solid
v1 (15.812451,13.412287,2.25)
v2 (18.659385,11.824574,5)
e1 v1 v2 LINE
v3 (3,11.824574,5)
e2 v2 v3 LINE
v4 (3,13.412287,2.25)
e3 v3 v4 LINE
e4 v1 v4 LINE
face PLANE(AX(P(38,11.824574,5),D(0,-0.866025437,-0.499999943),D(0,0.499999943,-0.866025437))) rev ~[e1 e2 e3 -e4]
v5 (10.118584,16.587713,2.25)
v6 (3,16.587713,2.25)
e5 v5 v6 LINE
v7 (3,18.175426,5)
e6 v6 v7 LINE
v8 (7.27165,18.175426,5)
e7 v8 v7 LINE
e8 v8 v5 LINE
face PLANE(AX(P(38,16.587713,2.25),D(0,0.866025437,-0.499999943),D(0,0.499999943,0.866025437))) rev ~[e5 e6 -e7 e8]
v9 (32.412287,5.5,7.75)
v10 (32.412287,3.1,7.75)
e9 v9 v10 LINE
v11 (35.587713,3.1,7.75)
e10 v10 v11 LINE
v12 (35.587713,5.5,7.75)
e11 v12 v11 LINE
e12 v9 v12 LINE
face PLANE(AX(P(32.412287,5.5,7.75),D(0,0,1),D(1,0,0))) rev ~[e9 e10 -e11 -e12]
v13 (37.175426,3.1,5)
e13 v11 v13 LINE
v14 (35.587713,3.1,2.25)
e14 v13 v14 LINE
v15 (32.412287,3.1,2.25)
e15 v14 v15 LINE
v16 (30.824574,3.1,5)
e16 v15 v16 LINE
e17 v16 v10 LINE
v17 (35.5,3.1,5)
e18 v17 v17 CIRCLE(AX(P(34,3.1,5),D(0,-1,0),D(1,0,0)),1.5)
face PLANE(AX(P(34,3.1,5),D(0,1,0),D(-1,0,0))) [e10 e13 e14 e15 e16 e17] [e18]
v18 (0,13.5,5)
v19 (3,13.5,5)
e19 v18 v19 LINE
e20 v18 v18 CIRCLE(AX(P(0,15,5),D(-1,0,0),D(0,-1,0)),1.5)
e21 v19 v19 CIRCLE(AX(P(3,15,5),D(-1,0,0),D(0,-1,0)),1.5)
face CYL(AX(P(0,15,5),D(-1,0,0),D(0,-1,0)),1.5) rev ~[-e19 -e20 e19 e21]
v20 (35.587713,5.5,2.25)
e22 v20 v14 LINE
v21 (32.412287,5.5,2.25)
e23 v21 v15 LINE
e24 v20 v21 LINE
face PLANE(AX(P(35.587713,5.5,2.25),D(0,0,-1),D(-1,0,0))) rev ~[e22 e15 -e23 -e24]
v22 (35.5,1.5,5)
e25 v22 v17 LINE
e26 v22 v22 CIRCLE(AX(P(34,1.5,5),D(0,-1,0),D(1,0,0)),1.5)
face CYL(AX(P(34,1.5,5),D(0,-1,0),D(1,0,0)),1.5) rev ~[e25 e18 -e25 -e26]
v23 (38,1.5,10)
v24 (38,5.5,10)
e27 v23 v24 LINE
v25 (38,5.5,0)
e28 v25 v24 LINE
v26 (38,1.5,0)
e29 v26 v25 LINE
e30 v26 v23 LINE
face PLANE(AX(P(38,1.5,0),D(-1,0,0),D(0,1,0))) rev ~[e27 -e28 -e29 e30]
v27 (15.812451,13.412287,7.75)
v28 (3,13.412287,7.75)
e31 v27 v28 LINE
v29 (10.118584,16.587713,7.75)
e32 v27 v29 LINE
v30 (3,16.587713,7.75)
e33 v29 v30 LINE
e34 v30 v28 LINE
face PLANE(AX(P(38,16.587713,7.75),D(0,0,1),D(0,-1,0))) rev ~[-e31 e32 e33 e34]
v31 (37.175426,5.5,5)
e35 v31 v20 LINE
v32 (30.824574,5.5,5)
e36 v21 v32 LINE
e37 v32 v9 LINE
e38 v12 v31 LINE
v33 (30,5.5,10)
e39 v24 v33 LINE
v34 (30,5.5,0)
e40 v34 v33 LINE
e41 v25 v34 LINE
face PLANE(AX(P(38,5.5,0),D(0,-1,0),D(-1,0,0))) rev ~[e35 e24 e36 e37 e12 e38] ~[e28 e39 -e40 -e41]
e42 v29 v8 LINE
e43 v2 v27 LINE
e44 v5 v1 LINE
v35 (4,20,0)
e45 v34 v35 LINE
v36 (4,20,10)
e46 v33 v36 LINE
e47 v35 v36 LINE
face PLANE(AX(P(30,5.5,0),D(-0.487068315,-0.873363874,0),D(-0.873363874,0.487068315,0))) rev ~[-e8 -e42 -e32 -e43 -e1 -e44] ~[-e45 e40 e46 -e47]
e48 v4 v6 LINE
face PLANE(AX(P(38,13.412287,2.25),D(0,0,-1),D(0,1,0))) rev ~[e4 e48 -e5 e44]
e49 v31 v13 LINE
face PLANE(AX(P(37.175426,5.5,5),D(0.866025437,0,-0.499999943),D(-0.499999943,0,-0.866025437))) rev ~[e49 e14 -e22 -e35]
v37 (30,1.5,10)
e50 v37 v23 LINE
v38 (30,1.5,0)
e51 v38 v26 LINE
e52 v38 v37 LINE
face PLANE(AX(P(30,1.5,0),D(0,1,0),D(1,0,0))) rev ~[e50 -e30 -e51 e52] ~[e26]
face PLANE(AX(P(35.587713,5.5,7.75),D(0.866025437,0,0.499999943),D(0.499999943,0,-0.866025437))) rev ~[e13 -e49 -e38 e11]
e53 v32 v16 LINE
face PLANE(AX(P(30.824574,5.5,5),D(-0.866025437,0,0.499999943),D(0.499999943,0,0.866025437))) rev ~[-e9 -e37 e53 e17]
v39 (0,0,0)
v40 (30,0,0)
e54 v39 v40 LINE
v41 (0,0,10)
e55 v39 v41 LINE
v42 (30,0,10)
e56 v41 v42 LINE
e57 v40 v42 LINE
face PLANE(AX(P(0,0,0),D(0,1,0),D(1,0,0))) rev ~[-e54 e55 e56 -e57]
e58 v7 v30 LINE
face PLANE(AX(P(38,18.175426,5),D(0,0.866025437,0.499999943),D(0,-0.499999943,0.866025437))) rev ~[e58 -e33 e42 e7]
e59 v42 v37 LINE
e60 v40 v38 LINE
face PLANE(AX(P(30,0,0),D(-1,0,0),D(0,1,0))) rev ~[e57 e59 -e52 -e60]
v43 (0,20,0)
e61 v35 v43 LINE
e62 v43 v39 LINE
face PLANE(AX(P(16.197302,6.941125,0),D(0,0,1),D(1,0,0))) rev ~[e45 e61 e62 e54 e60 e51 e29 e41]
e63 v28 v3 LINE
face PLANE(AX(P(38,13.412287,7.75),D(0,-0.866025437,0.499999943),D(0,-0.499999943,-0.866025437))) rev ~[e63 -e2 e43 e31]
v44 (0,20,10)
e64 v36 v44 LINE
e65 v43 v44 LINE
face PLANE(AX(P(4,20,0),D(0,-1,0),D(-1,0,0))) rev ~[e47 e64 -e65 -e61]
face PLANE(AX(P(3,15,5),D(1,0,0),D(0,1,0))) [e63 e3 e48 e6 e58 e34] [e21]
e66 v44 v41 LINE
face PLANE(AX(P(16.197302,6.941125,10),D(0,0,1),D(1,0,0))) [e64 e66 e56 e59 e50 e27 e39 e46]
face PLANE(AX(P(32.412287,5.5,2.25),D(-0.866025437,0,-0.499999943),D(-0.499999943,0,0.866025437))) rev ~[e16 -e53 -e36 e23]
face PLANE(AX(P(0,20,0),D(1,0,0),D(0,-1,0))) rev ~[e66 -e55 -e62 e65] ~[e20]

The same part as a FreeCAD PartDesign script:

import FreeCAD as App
import Part
import Sketcher
from FreeCAD import Vector
Q = App.Units.Quantity

doc = App.newDocument("Part")
body = doc.addObject("PartDesign::Body", "Body")

sketch1 = body.newObject("Sketcher::SketchObject", "Sketch")
sketch1.AttachmentSupport = (doc.getObject("XY_Plane"), [""])
sketch1.MapMode = "FlatFace"
sketch1.addGeometry([
    Part.LineSegment(Vector(0, 0, 0), Vector(30, 0, 0)),
    Part.LineSegment(Vector(30, 0, 0), Vector(30, 1.5, 0)),
    Part.LineSegment(Vector(30, 1.5, 0), Vector(38, 1.5, 0)),
    Part.LineSegment(Vector(38, 1.5, 0), Vector(38, 5.5, 0)),
    Part.LineSegment(Vector(38, 5.5, 0), Vector(30, 5.5, 0)),
    Part.LineSegment(Vector(30, 5.5, 0), Vector(4, 20, 0)),
    Part.LineSegment(Vector(4, 20, 0), Vector(0, 20, 0)),
    Part.LineSegment(Vector(0, 20, 0), Vector(0, 0, 0)),
], False)
sketch1.addConstraint([
    Sketcher.Constraint("Coincident", 0, 2, 1, 1),
    Sketcher.Constraint("Coincident", 1, 2, 2, 1),
    Sketcher.Constraint("Coincident", 2, 2, 3, 1),
    Sketcher.Constraint("Coincident", 3, 2, 4, 1),
    Sketcher.Constraint("Coincident", 4, 2, 5, 1),
    Sketcher.Constraint("Coincident", 5, 2, 6, 1),
    Sketcher.Constraint("Coincident", 6, 2, 7, 1),
    Sketcher.Constraint("Coincident", 7, 2, 0, 1),
    Sketcher.Constraint("Horizontal", 0),
    Sketcher.Constraint("Vertical", 1),
    Sketcher.Constraint("Horizontal", 2),
    Sketcher.Constraint("Vertical", 3),
    Sketcher.Constraint("Horizontal", 4),
    Sketcher.Constraint("Horizontal", 6),
    Sketcher.Constraint("Vertical", 7),
    Sketcher.Constraint("Coincident", 7, 2, -1, 1),
    Sketcher.Constraint("Vertical", 1, 2, 4, 2),
    Sketcher.Constraint("Equal", 6, 3),
    Sketcher.Constraint("DistanceX", 0, 1, 0, 2, Q("30 mm")),
    Sketcher.Constraint("DistanceX", 2, 1, 2, 2, Q("8 mm")),
    Sketcher.Constraint("DistanceX", 6, 2, 6, 1, Q("4 mm")),
    Sketcher.Constraint("DistanceY", 7, 2, 7, 1, Q("20 mm")),
    Sketcher.Constraint("DistanceY", 1, 1, 1, 2, Q("1.5 mm")),
])
pad1 = body.newObject("PartDesign::Pad", "Pad")
pad1.Profile = sketch1
pad1.Length = 10

sketch2 = body.newObject("Sketcher::SketchObject", "Sketch001")
sketch2.AttachmentSupport = (doc.getObject("XZ_Plane"), [""])
sketch2.MapMode = "FlatFace"
sketch2.AttachmentOffset = App.Placement(Vector(0, 0, -1.5), App.Rotation())
sketch2.addGeometry(Part.Circle(Vector(34, 5, 0), Vector(0, 0, 1), 1.5), False)
sketch2.addConstraint([
    Sketcher.Constraint("Diameter", 0, Q("3 mm")),
    Sketcher.Constraint("DistanceX", -1, 1, 0, 3, Q("34 mm")),
    Sketcher.Constraint("DistanceY", -1, 1, 0, 3, Q("5 mm")),
])
pocket1 = body.newObject("PartDesign::Pocket", "Pocket")
pocket1.Profile = sketch2
pocket1.Type = "ThroughAll"

sketch3 = body.newObject("Sketcher::SketchObject", "Sketch002")
sketch3.AttachmentSupport = (doc.getObject("XZ_Plane"), [""])
sketch3.MapMode = "FlatFace"
sketch3.AttachmentOffset = App.Placement(Vector(0, 0, -5.5), App.Rotation())
sketch3.addGeometry([
    Part.LineSegment(Vector(30.8, 5, 0), Vector(32.4, 7.8, 0)),
    Part.LineSegment(Vector(32.4, 7.8, 0), Vector(35.6, 7.8, 0)),
    Part.LineSegment(Vector(35.6, 7.8, 0), Vector(37.2, 5, 0)),
    Part.LineSegment(Vector(37.2, 5, 0), Vector(35.6, 2.2, 0)),
    Part.LineSegment(Vector(35.6, 2.2, 0), Vector(32.4, 2.2, 0)),
    Part.LineSegment(Vector(32.4, 2.2, 0), Vector(30.8, 5, 0)),
], False)
sketch3.addConstraint([
    Sketcher.Constraint("Coincident", 0, 2, 1, 1),
    Sketcher.Constraint("Coincident", 1, 2, 2, 1),
    Sketcher.Constraint("Coincident", 2, 2, 3, 1),
    Sketcher.Constraint("Coincident", 3, 2, 4, 1),
    Sketcher.Constraint("Coincident", 4, 2, 5, 1),
    Sketcher.Constraint("Coincident", 5, 2, 0, 1),
    Sketcher.Constraint("Horizontal", 1),
    Sketcher.Constraint("Horizontal", 4),
    Sketcher.Constraint("Parallel", 0, 3),
    Sketcher.Constraint("Parallel", 2, 5),
    Sketcher.Constraint("Horizontal", 2, 2, 5, 2),
    Sketcher.Constraint("Vertical", 1, 2, 3, 2),
    Sketcher.Constraint("Vertical", 0, 2, 4, 2),
    Sketcher.Constraint("Angle", 0, Q("60.000004 deg")),
    Sketcher.Constraint("DistanceY", -1, 1, 2, 2, Q("5 mm")),
    Sketcher.Constraint("DistanceY", 3, 2, 1, 2, Q("5.5 mm")),
    Sketcher.Constraint("DistanceX", 1, 1, 1, 2, Q("3.175426 mm")),
    Sketcher.Constraint("DistanceX", -1, 1, 0, 2, Q("32.412287 mm")),
])
pocket2 = body.newObject("PartDesign::Pocket", "Pocket001")
pocket2.Profile = sketch3
pocket2.Length = 2.4
pocket2.Reversed = True

sketch4 = body.newObject("Sketcher::SketchObject", "Sketch003")
sketch4.AttachmentSupport = (doc.getObject("YZ_Plane"), [""])
sketch4.MapMode = "FlatFace"
sketch4.addGeometry(Part.Circle(Vector(15, 5, 0), Vector(0, 0, 1), 1.5), False)
sketch4.addConstraint([
    Sketcher.Constraint("Diameter", 0, Q("3 mm")),
    Sketcher.Constraint("DistanceX", -1, 1, 0, 3, Q("15 mm")),
    Sketcher.Constraint("DistanceY", -1, 1, 0, 3, Q("5 mm")),
])
pocket3 = body.newObject("PartDesign::Pocket", "Pocket002")
pocket3.Profile = sketch4
pocket3.Type = "ThroughAll"
pocket3.Reversed = True

sketch5 = body.newObject("Sketcher::SketchObject", "Sketch004")
sketch5.AttachmentSupport = (doc.getObject("YZ_Plane"), [""])
sketch5.MapMode = "FlatFace"
sketch5.AttachmentOffset = App.Placement(Vector(0, 0, 38), App.Rotation())
sketch5.addGeometry([
    Part.LineSegment(Vector(16.6, 2.2, 0), Vector(18.2, 5, 0)),
    Part.LineSegment(Vector(18.2, 5, 0), Vector(16.6, 7.8, 0)),
    Part.LineSegment(Vector(16.6, 7.8, 0), Vector(13.4, 7.8, 0)),
    Part.LineSegment(Vector(13.4, 7.8, 0), Vector(11.8, 5, 0)),
    Part.LineSegment(Vector(11.8, 5, 0), Vector(13.4, 2.2, 0)),
    Part.LineSegment(Vector(13.4, 2.2, 0), Vector(16.6, 2.2, 0)),
], False)
sketch5.addConstraint([
    Sketcher.Constraint("Coincident", 0, 2, 1, 1),
    Sketcher.Constraint("Coincident", 1, 2, 2, 1),
    Sketcher.Constraint("Coincident", 2, 2, 3, 1),
    Sketcher.Constraint("Coincident", 3, 2, 4, 1),
    Sketcher.Constraint("Coincident", 4, 2, 5, 1),
    Sketcher.Constraint("Coincident", 5, 2, 0, 1),
    Sketcher.Constraint("Horizontal", 2),
    Sketcher.Constraint("Horizontal", 5),
    Sketcher.Constraint("Parallel", 0, 3),
    Sketcher.Constraint("Parallel", 1, 4),
    Sketcher.Constraint("Horizontal", 0, 2, 3, 2),
    Sketcher.Constraint("Vertical", 2, 2, 4, 2),
    Sketcher.Constraint("Vertical", 1, 2, 5, 2),
    Sketcher.Constraint("Angle", 0, Q("60.000004 deg")),
    Sketcher.Constraint("DistanceY", -1, 1, 0, 2, Q("5 mm")),
    Sketcher.Constraint("DistanceY", 4, 2, 2, 2, Q("5.5 mm")),
    Sketcher.Constraint("DistanceX", 2, 2, 2, 1, Q("3.175426 mm")),
    Sketcher.Constraint("DistanceX", -1, 1, 0, 2, Q("18.175426 mm")),
])
pocket4 = body.newObject("PartDesign::Pocket", "Pocket003")
pocket4.Profile = sketch5
pocket4.Length = 35

doc.recompute()
